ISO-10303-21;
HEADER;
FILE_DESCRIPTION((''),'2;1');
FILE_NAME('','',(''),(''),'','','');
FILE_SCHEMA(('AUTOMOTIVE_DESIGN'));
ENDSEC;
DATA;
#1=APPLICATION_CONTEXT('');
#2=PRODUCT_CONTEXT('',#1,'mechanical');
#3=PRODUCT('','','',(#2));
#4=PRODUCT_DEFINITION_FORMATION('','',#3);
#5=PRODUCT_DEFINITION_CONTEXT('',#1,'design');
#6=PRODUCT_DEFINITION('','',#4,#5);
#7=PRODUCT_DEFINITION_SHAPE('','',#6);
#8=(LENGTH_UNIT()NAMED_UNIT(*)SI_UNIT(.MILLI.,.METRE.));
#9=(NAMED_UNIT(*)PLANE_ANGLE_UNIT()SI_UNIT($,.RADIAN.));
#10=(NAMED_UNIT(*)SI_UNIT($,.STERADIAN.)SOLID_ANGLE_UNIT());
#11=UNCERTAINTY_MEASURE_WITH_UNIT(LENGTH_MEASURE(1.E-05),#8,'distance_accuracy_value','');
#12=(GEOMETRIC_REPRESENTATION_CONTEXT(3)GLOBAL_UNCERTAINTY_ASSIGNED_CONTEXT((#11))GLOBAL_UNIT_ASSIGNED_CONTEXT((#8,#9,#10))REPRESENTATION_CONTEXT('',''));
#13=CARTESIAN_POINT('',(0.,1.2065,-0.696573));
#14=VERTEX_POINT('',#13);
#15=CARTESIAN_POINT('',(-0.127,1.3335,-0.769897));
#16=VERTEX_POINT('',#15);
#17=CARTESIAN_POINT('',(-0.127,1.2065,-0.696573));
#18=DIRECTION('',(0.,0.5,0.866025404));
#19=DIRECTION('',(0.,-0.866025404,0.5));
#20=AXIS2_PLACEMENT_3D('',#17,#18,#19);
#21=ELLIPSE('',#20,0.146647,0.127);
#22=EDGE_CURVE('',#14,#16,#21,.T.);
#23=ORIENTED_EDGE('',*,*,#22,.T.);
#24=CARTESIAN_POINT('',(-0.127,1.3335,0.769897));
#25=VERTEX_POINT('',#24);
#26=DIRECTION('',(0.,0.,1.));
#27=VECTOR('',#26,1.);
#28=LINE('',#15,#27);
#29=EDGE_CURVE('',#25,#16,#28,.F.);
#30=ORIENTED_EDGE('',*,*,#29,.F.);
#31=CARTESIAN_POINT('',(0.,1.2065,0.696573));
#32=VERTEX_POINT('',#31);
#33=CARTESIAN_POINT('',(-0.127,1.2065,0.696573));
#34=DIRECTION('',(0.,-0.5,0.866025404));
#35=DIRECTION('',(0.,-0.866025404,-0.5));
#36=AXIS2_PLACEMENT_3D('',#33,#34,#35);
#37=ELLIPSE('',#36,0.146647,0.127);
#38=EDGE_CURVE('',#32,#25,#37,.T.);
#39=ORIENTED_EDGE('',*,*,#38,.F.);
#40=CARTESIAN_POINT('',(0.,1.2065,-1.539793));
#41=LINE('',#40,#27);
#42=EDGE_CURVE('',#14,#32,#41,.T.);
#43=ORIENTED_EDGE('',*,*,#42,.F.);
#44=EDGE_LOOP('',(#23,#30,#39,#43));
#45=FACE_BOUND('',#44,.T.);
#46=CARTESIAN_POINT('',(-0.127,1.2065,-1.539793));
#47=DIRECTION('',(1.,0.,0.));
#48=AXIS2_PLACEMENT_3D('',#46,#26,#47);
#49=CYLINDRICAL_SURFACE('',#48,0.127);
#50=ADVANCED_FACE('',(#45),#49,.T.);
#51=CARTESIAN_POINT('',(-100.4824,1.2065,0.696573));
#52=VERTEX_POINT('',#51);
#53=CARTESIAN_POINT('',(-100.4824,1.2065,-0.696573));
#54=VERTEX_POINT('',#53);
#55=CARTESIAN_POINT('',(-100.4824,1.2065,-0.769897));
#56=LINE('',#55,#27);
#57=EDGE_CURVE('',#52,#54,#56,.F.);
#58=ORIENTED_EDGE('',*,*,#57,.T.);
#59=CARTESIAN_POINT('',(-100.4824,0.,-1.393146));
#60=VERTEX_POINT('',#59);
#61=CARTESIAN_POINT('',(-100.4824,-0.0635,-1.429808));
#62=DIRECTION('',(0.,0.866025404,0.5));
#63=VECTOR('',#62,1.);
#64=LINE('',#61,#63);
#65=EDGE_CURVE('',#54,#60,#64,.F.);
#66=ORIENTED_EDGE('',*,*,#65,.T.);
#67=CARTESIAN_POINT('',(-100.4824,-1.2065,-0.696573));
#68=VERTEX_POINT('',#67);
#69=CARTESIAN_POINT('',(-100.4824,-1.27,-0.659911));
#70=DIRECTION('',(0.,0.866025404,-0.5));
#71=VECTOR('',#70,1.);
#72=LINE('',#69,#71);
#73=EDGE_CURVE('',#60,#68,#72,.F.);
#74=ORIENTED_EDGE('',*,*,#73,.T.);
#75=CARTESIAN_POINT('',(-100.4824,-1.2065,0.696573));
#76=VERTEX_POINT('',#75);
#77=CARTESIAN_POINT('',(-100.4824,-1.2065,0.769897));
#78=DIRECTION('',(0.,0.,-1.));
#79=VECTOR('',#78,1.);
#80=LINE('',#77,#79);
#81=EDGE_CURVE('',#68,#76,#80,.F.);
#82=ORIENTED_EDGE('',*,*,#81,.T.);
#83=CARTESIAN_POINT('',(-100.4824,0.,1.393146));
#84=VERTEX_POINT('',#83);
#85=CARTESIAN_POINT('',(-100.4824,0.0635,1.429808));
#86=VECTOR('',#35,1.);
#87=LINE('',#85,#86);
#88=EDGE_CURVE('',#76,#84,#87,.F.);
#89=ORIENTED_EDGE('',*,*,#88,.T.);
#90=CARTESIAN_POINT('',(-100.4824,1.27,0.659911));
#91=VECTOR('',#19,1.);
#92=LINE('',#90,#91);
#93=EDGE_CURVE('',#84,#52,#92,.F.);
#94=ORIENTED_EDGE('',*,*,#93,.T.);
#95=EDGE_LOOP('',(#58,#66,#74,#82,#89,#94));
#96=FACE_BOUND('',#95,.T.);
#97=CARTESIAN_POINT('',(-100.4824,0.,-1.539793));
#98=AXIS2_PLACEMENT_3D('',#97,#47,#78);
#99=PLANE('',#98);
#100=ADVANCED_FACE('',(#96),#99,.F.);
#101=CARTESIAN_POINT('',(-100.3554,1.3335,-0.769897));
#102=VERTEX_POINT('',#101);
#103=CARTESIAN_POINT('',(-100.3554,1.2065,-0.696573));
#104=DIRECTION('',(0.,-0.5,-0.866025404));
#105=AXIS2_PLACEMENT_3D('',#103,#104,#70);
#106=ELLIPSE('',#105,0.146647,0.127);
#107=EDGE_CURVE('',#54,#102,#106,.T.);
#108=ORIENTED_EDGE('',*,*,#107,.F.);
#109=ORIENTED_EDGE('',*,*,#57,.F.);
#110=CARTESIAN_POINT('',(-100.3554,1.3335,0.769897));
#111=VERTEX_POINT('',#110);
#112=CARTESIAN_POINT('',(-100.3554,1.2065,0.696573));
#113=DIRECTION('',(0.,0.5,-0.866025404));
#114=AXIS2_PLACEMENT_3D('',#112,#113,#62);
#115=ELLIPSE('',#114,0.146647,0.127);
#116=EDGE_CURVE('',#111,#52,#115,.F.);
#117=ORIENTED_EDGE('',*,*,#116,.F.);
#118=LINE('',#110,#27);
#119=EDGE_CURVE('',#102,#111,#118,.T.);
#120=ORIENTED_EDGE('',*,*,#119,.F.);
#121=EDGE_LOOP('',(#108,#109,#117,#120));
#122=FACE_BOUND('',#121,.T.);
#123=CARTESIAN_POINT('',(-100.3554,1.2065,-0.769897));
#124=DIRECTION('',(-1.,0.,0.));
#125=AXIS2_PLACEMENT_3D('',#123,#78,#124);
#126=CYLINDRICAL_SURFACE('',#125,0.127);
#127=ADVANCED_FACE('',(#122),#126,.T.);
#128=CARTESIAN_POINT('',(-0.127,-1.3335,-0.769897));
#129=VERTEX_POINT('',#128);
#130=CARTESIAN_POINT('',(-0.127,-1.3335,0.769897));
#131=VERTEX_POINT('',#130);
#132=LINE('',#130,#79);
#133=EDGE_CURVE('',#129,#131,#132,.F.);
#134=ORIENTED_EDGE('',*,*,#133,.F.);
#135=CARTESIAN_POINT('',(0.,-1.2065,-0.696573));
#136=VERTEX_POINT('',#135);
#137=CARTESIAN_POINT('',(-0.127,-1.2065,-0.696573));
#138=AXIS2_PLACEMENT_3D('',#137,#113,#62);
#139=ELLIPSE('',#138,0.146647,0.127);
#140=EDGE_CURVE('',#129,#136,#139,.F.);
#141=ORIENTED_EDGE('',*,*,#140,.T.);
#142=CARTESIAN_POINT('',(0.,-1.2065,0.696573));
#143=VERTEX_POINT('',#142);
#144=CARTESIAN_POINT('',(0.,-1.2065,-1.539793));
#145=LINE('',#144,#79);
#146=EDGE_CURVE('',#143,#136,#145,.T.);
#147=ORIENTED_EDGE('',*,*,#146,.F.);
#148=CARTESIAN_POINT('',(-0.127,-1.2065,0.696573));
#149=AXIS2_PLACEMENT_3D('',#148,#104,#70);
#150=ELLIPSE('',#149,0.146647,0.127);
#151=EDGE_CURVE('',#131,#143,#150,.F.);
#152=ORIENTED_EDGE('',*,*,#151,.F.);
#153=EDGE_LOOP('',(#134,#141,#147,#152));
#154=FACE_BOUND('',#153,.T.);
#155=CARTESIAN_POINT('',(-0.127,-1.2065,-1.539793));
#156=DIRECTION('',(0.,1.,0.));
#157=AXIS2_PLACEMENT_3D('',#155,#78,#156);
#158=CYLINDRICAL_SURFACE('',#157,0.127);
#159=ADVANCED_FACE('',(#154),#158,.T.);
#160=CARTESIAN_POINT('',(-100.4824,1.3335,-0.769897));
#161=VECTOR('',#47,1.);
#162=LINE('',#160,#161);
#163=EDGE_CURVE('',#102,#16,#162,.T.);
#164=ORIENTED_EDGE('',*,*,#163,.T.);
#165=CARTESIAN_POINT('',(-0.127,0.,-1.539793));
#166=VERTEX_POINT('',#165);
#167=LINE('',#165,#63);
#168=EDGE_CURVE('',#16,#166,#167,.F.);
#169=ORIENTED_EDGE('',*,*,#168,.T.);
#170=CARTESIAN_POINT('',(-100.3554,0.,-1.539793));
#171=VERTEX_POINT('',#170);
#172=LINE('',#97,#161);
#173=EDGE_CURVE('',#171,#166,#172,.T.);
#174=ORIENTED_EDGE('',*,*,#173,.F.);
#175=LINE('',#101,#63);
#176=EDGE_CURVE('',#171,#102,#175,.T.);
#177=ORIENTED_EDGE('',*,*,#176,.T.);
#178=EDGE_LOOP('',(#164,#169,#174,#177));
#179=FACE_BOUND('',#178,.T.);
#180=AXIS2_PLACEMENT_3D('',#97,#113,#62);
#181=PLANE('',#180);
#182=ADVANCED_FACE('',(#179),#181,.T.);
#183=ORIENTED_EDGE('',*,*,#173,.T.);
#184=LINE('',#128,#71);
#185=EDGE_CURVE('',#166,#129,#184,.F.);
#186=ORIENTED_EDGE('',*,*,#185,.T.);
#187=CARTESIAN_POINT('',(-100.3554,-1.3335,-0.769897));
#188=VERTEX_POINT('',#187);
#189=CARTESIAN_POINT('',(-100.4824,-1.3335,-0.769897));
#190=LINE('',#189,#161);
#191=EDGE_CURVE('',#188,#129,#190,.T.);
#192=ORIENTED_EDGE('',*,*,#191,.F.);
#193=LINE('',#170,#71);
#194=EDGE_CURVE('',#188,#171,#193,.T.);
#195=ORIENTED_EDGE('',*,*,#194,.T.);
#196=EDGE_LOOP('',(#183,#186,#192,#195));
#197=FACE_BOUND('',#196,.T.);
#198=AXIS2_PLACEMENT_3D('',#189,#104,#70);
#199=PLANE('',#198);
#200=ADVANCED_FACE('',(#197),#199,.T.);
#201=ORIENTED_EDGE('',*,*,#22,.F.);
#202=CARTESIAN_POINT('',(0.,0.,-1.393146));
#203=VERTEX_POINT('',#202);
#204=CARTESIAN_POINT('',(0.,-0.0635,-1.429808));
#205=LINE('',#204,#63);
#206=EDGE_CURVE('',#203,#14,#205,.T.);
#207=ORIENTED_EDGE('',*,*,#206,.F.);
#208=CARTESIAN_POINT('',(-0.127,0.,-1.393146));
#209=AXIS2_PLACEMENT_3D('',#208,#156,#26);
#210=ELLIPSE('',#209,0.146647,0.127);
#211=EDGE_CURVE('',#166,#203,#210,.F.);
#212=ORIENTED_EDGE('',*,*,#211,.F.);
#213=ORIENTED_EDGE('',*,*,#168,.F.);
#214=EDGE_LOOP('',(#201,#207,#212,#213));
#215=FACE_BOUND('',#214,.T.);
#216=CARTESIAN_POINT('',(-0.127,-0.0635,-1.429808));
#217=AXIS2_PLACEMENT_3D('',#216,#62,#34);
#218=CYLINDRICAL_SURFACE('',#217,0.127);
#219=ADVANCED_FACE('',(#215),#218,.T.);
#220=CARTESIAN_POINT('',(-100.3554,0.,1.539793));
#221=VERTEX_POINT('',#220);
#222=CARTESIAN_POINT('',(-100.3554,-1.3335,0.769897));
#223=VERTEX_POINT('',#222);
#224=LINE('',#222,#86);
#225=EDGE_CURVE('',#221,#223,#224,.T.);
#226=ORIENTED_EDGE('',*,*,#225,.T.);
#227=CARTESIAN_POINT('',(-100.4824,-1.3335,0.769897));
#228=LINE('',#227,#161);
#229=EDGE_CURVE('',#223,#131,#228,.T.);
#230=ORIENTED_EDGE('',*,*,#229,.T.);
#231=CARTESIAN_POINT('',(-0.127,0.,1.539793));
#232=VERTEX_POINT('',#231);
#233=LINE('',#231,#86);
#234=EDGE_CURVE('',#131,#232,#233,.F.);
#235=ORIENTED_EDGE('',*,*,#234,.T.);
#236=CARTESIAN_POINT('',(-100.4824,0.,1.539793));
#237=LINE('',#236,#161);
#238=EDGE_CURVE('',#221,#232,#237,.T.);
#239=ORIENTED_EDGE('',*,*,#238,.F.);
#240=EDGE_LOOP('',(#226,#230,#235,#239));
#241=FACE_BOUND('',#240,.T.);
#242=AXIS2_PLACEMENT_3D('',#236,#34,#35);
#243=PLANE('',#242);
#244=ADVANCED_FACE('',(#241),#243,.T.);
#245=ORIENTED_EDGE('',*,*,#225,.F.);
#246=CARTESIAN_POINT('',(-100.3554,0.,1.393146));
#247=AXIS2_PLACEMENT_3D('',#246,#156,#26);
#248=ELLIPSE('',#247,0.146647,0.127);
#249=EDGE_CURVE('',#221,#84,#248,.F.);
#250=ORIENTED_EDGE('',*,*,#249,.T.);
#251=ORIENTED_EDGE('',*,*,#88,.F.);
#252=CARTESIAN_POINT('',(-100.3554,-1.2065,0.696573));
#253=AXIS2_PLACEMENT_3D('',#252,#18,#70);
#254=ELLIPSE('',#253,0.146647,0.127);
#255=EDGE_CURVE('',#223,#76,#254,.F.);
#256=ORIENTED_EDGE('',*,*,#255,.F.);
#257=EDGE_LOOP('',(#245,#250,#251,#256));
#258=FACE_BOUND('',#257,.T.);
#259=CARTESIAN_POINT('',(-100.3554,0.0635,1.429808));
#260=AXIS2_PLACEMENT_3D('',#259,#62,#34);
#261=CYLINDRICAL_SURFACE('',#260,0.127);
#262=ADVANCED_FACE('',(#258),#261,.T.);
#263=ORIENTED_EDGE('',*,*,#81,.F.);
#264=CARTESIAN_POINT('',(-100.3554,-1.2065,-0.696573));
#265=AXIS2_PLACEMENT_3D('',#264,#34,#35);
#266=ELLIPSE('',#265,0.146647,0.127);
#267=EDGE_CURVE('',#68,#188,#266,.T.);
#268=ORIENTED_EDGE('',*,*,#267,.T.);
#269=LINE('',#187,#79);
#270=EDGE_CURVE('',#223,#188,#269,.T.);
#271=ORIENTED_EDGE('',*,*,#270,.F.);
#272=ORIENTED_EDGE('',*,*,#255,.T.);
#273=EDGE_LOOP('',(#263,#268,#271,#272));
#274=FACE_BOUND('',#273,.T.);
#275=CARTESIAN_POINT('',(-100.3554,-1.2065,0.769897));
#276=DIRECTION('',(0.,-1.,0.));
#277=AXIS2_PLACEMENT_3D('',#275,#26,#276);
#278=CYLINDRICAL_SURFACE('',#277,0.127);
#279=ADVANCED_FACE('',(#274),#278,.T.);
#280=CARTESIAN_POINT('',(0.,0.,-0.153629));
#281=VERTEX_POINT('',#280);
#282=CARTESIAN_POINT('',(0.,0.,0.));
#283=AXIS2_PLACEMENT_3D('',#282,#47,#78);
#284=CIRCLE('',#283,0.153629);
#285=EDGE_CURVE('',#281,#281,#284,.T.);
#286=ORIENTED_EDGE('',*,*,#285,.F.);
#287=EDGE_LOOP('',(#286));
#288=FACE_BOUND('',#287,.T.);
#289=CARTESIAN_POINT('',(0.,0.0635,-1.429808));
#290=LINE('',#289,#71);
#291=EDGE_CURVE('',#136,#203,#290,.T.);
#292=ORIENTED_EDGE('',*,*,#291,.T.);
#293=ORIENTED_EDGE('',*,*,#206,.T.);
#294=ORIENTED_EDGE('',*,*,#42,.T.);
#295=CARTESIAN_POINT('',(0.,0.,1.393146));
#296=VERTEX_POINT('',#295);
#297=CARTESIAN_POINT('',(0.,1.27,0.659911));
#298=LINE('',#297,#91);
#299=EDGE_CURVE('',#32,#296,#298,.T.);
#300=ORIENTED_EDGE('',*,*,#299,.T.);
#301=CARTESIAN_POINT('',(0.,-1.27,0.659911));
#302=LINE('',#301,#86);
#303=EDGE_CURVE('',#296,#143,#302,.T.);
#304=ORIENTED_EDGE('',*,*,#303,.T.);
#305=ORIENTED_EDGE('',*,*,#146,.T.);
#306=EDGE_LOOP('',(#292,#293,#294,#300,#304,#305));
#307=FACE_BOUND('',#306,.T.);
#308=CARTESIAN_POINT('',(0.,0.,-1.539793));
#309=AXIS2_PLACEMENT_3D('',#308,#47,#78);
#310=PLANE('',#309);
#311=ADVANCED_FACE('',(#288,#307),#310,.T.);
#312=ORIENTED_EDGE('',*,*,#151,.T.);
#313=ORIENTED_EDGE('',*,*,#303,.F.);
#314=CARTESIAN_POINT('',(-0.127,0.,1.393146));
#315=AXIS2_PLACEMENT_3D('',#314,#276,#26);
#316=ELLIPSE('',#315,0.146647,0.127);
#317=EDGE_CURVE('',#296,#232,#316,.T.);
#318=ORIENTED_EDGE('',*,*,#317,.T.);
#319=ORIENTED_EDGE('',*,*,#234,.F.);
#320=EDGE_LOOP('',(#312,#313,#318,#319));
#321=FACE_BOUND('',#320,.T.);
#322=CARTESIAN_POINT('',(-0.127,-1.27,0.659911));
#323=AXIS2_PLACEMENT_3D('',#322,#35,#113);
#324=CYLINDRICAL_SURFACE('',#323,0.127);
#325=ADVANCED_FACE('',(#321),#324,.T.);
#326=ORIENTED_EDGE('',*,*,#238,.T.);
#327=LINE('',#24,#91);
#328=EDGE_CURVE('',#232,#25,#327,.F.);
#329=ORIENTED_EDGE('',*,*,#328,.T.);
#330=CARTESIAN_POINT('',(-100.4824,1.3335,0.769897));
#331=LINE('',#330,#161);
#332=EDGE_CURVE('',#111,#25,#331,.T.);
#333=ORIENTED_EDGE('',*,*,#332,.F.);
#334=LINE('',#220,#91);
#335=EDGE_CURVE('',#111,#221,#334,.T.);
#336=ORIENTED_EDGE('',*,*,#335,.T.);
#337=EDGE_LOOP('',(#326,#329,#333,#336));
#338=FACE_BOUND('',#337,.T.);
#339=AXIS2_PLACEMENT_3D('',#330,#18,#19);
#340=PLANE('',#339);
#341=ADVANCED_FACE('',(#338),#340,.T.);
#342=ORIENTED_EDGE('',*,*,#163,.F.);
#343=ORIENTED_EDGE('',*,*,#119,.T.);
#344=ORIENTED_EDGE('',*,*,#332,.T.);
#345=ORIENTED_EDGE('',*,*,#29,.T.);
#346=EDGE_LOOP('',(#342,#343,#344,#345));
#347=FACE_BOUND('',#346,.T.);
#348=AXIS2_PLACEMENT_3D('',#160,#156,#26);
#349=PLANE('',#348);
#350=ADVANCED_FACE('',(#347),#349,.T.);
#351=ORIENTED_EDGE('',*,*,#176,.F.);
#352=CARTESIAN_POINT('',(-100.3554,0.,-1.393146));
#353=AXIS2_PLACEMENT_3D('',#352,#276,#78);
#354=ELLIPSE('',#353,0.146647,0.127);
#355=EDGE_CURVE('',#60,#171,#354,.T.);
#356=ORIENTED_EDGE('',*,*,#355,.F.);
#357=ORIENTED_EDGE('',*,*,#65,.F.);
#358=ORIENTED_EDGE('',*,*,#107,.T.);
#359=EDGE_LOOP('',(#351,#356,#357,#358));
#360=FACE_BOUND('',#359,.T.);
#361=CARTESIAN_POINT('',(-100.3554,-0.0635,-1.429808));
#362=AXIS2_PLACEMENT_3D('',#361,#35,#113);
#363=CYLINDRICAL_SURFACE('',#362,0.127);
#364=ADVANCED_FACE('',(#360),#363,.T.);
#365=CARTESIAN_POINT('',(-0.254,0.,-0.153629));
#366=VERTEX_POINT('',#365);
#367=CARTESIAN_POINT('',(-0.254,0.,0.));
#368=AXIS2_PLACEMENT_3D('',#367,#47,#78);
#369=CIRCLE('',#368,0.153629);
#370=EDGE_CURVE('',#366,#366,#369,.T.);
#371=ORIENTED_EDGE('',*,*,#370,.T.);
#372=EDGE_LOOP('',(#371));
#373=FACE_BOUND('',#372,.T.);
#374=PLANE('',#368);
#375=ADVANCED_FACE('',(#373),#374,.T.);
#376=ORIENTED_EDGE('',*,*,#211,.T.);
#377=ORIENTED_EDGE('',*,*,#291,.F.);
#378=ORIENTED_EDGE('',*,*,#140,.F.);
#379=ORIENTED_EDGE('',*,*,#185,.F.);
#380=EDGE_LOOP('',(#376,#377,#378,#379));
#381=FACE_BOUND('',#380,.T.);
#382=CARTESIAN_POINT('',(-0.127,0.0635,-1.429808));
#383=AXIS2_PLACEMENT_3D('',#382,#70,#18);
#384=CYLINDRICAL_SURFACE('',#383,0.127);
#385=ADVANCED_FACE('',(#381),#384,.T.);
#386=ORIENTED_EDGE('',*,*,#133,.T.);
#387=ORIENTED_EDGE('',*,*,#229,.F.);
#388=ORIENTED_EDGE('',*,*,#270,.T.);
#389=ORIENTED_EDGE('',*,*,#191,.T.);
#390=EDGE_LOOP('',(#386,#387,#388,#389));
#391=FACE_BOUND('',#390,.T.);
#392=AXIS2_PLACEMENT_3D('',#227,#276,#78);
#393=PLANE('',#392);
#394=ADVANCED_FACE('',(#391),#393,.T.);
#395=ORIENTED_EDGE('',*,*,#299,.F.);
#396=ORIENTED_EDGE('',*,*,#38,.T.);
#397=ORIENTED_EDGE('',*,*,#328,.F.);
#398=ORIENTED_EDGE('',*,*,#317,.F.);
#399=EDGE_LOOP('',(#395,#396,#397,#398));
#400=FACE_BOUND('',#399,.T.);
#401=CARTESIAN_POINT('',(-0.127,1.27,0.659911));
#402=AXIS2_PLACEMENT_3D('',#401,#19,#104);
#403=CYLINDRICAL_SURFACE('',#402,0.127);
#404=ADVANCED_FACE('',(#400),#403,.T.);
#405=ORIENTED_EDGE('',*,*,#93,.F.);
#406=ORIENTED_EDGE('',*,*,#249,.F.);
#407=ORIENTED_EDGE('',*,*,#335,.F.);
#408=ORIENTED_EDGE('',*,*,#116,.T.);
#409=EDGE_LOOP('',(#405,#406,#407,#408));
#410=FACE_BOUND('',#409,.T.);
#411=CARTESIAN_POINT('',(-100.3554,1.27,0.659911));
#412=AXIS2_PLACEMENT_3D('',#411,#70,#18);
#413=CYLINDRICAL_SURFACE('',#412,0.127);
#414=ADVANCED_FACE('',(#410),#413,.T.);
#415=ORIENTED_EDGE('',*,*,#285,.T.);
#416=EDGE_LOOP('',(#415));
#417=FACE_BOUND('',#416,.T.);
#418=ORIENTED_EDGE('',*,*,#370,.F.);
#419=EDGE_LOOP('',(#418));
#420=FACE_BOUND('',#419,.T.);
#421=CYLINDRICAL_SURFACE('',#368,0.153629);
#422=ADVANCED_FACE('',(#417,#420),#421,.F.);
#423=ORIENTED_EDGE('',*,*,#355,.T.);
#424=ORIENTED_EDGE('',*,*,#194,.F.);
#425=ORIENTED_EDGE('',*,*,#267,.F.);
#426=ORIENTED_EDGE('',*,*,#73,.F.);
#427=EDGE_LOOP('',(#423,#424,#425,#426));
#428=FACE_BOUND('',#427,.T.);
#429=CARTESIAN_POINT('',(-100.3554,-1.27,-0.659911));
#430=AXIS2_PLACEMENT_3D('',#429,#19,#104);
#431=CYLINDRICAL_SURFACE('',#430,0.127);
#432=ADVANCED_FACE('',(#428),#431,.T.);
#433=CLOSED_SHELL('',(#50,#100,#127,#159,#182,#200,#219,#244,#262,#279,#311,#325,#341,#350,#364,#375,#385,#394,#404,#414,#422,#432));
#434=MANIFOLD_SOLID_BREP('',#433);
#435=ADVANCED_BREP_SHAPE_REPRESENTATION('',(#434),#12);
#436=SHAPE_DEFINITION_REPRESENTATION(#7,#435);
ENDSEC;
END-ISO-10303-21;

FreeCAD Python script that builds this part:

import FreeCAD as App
import Part
import Sketcher
from FreeCAD import Vector
Q = App.Units.Quantity


def edges_at(feature, points):
    """Names of the edges that pass closest to the given points."""
    edges = feature.Shape.Edges
    near = lambda p: min(range(len(edges)), key=lambda i: edges[i].distToShape(Part.Vertex(*p))[0])
    return sorted({f"Edge{near(p) + 1}" for p in points})

doc = App.newDocument("Part")
params = doc.addObject("Spreadsheet::Sheet", "Params")
for row, (alias, value) in enumerate([
    ("pad1_length", "3.956 in"),
    ("fillet_radius", "0.005 in"),
    ("pocket1_length", "0.01 in"),
], start=1):
    params.set(f"A{row}", alias)
    params.set(f"B{row}", "=" + value)
    params.setAlias(f"B{row}", alias)

body = doc.addObject("PartDesign::Body", "Body")

sketch1 = body.newObject("Sketcher::SketchObject", "Sketch")
sketch1.AttachmentSupport = (doc.getObject("YZ_Plane"), [""])
sketch1.MapMode = "FlatFace"
sketch1.addGeometry(Part.LineSegment(Vector(0, -1.5, 0), Vector(1.3, -0.8, 0)), False)
sketch1.addGeometry(Part.LineSegment(Vector(1.3, -0.8, 0), Vector(1.3, 0.8, 0)), False)
sketch1.addGeometry(Part.LineSegment(Vector(1.3, 0.8, 0), Vector(0, 1.5, 0)), False)
sketch1.addGeometry(Part.LineSegment(Vector(0, 1.5, 0), Vector(-1.3, 0.8, 0)), False)
sketch1.addGeometry(Part.LineSegment(Vector(-1.3, 0.8, 0), Vector(-1.3, -0.8, 0)), False)
sketch1.addGeometry(Part.LineSegment(Vector(-1.3, -0.8, 0), Vector(0, -1.5, 0)), False)
sketch1.addConstraint(Sketcher.Constraint("Coincident", 0, 2, 1, 1))
sketch1.addConstraint(Sketcher.Constraint("Coincident", 1, 2, 2, 1))
sketch1.addConstraint(Sketcher.Constraint("Coincident", 2, 2, 3, 1))
sketch1.addConstraint(Sketcher.Constraint("Coincident", 3, 2, 4, 1))
sketch1.addConstraint(Sketcher.Constraint("Coincident", 4, 2, 5, 1))
sketch1.addConstraint(Sketcher.Constraint("Coincident", 5, 2, 0, 1))
sketch1.addConstraint(Sketcher.Constraint("Vertical", 1))
sketch1.addConstraint(Sketcher.Constraint("Vertical", 4))
sketch1.addConstraint(Sketcher.Constraint("Symmetric", 0, 2, 3, 2, -1, 1))
sketch1.addConstraint(Sketcher.Constraint("Symmetric", 2, 2, 5, 2, -1, 1))
sketch1.addConstraint(Sketcher.Constraint("PointOnObject", 2, 2, -2))
sketch1.addConstraint(Sketcher.Constraint("Parallel", 2, 5))
sketch1.addConstraint(Sketcher.Constraint("Horizontal", 1, 2, 3, 2))
sketch1.addConstraint(Sketcher.Constraint("Angle", 0, Q("30 deg")))
sketch1.addConstraint(Sketcher.Constraint("DistanceX", 3, 2, 1, 2, Q("0.105 in")))
sketch1.addConstraint(Sketcher.Constraint("DistanceY", 1, 1, 1, 2, Q("1.539793 mm")))
pad1 = body.newObject("PartDesign::Pad", "Pad")
pad1.Profile = sketch1
pad1.setExpression("Length", "Params.pad1_length")
pad1.Reversed = True
doc.recompute()

fillet = body.newObject("PartDesign::Fillet", "Fillet")
fillet.Base = (pad1, edges_at(pad1, [
    (-100.482, 1.333, 0),
    (-100.482, 0.667, 1.155),
    (-100.482, -0.667, 1.155),
    (-100.482, -1.333, 0),
    (-100.482, -0.667, -1.155),
    (0, -1.333, 0),
    (0, -0.667, 1.155),
    (0, 0.667, 1.155),
    (-100.482, 0.667, -1.155),
    (0, 1.333, 0),
    (0, 0.667, -1.155),
    (0, -0.667, -1.155),
]))
fillet.setExpression("Radius", "Params.fillet_radius")

sketch2 = body.newObject("Sketcher::SketchObject", "Sketch001")
sketch2.AttachmentSupport = (doc.getObject("YZ_Plane"), [""])
sketch2.MapMode = "FlatFace"
sketch2.addGeometry(Part.Circle(Vector(0, 0, 0), Vector(0, 0, 1), 0.15), False)
sketch2.addConstraint(Sketcher.Constraint("Coincident", 0, 3, -1, 1))
sketch2.addConstraint(Sketcher.Constraint("Diameter", 0, Q("0.307258 mm")))
pocket1 = body.newObject("PartDesign::Pocket", "Pocket")
pocket1.Profile = sketch2
pocket1.setExpression("Length", "Params.pocket1_length")

doc.recompute()
